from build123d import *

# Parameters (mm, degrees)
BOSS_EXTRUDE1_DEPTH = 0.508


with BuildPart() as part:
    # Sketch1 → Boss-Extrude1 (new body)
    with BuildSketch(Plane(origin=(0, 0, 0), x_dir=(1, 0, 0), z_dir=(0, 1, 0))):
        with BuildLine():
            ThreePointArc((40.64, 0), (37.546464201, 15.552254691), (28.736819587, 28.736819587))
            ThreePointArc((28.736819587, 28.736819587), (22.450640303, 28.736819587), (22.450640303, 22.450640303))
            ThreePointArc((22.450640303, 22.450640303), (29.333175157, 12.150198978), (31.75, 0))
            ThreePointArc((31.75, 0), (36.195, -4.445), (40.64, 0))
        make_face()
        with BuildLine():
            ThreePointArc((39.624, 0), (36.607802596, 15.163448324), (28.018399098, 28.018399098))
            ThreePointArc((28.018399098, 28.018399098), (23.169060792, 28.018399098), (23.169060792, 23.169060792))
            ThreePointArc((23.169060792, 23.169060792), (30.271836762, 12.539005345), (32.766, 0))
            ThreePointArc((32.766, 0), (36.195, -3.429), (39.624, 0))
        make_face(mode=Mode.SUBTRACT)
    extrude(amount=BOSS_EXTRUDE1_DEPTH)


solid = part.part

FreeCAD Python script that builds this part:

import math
import FreeCAD as App
import Part
import Sketcher
Q = App.Units.Quantity

doc = App.newDocument("Part")
body = doc.addObject("PartDesign::Body", "Body")

sketch1 = body.newObject("Sketcher::SketchObject", "Sketch")
sketch1.AttachmentSupport = (doc.getObject("XZ_Plane"), [""])
sketch1.MapMode = "FlatFace"
sketch1.addGeometry([
    Part.ArcOfCircle(Part.Circle(App.Vector(0, 0, 0), App.Vector(0, 0, 1), 40.64), math.radians(-45), math.radians(0)),
    Part.ArcOfCircle(Part.Circle(App.Vector(25.59373, -25.59373, 0), App.Vector(0, 0, 1), 4.445), math.radians(135), math.radians(315)),
    Part.ArcOfCircle(Part.Circle(App.Vector(0, 0, 0), App.Vector(0, 0, 1), 31.75), math.radians(-45), math.radians(0)),
    Part.ArcOfCircle(Part.Circle(App.Vector(36.195, 0, 0), App.Vector(0, 0, 1), 4.445), math.radians(0), math.radians(180)),
    Part.ArcOfCircle(Part.Circle(App.Vector(0, 0, 0), App.Vector(0, 0, 1), 39.624), math.radians(-45), math.radians(0)),
    Part.ArcOfCircle(Part.Circle(App.Vector(36.195, 0, 0), App.Vector(0, 0, 1), 3.429), math.radians(0), math.radians(180)),
    Part.ArcOfCircle(Part.Circle(App.Vector(0, 0, 0), App.Vector(0, 0, 1), 32.766), math.radians(-45), math.radians(0)),
    Part.ArcOfCircle(Part.Circle(App.Vector(25.59373, -25.59373, 0), App.Vector(0, 0, 1), 3.429), math.radians(135), math.radians(315)),
], False)
sketch1.addConstraint([
    Sketcher.Constraint("Tangent", 0, 1, 1, 2),
    Sketcher.Constraint("Tangent", 1, 1, 2, 1),
    Sketcher.Constraint("Tangent", 2, 2, 3, 2),
    Sketcher.Constraint("Tangent", 3, 1, 0, 2),
    Sketcher.Constraint("Tangent", 4, 2, 5, 1),
    Sketcher.Constraint("Tangent", 5, 2, 6, 2),
    Sketcher.Constraint("Tangent", 6, 1, 7, 1),
    Sketcher.Constraint("Tangent", 7, 2, 4, 1),
    Sketcher.Constraint("Coincident", 0, 3, -1, 1),
    Sketcher.Constraint("Coincident", 2, 3, -1, 1),
    Sketcher.Constraint("Coincident", 4, 3, -1, 1),
    Sketcher.Constraint("Coincident", 6, 3, -1, 1),
    Sketcher.Constraint("Coincident", 5, 3, 3, 3),
    Sketcher.Constraint("PointOnObject", 3, 3, -1),
    Sketcher.Constraint("Radius", 0, Q("1.6 in")),
    Sketcher.Constraint("Radius", 2, Q("1.25 in")),
    Sketcher.Constraint("Radius", 4, Q("1.56 in")),
    Sketcher.Constraint("DistanceX", -1, 1, 7, 2, 28.018399),
    Sketcher.Constraint("DistanceX", -1, 1, 1, 3, 25.59373),
])
pad1 = body.newObject("PartDesign::Pad", "Pad")
pad1.Profile = sketch1
pad1.Length = Q("0.02 in")
pad1.Reversed = True

doc.recompute()
